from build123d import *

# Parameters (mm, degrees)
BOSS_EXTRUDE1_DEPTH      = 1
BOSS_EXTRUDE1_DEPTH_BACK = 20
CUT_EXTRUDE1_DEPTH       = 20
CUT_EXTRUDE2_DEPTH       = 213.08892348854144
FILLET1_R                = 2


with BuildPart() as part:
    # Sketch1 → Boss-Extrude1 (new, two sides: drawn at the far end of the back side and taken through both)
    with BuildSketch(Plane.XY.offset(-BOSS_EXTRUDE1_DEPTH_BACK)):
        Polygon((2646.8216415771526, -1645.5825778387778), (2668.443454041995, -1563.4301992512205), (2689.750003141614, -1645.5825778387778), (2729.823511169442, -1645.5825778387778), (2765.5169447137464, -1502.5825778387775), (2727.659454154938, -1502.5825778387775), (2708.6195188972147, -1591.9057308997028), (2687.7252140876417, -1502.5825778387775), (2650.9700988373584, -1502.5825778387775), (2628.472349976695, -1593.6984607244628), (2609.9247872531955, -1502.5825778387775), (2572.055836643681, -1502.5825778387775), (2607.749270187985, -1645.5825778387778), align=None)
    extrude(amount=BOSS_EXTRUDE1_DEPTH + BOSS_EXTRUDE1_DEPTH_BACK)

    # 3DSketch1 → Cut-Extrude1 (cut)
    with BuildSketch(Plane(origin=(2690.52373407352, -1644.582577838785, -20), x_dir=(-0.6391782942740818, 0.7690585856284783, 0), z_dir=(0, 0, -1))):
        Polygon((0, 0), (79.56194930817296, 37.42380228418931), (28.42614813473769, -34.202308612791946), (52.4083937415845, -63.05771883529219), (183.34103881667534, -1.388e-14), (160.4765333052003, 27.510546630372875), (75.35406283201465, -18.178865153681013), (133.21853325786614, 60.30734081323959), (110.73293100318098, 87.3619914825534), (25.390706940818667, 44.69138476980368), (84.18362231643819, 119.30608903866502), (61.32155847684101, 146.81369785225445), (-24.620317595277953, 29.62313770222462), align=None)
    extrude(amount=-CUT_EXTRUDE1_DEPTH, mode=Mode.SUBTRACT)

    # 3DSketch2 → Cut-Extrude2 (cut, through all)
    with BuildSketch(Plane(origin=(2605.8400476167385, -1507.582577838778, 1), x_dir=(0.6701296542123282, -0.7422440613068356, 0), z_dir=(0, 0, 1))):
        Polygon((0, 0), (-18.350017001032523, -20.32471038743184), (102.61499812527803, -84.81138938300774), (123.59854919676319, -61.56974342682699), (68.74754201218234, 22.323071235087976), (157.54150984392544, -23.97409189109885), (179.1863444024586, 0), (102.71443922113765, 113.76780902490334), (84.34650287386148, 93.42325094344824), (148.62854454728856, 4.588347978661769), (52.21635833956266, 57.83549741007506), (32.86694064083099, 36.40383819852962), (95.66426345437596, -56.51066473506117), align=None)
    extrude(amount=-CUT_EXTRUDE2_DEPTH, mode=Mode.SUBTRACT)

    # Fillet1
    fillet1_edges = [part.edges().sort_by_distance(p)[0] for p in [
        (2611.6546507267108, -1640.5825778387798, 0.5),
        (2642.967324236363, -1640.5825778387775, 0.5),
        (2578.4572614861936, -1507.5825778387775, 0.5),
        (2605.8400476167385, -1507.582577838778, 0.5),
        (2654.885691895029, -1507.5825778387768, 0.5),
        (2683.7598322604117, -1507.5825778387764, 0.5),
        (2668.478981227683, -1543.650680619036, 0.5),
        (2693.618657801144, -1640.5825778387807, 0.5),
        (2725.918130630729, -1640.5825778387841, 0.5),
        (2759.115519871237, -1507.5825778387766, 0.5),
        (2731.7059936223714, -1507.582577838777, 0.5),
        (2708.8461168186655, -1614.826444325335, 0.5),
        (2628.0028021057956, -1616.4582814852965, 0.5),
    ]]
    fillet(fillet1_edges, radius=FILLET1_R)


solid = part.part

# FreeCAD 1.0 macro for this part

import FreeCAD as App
import Part
import Sketcher
from FreeCAD import Vector


def edges_at(feature, points):
    """Names of the edges that pass closest to the given points."""
    edges = feature.Shape.Edges
    near = lambda p: min(range(len(edges)), key=lambda i: edges[i].distToShape(Part.Vertex(*p))[0])
    return sorted({f"Edge{near(p) + 1}" for p in points})

doc = App.newDocument("Part")
body = doc.addObject("PartDesign::Body", "Body")

# Sketch on XY plane
sketch1 = body.newObject("Sketcher::SketchObject", "Sketch")
sketch1.AttachmentSupport = (doc.getObject("XY_Plane"), [""])
sketch1.MapMode = "FlatFace"
sketch1.addGeometry([
    Part.LineSegment(Vector(2647, -1646, 0), Vector(2668, -1563, 0)),  # 0
    Part.LineSegment(Vector(2668, -1563, 0), Vector(2690, -1646, 0)),  # 1
    Part.LineSegment(Vector(2690, -1646, 0), Vector(2730, -1646, 0)),  # 2
    Part.LineSegment(Vector(2730, -1646, 0), Vector(2766, -1503, 0)),  # 3
    Part.LineSegment(Vector(2766, -1503, 0), Vector(2728, -1503, 0)),  # 4
    Part.LineSegment(Vector(2728, -1503, 0), Vector(2709, -1592, 0)),  # 5
    Part.LineSegment(Vector(2709, -1592, 0), Vector(2688, -1503, 0)),  # 6
    Part.LineSegment(Vector(2688, -1503, 0), Vector(2651, -1503, 0)),  # 7
    Part.LineSegment(Vector(2651, -1503, 0), Vector(2628, -1594, 0)),  # 8
    Part.LineSegment(Vector(2628, -1594, 0), Vector(2610, -1503, 0)),  # 9
    Part.LineSegment(Vector(2610, -1503, 0), Vector(2572, -1503, 0)),  # 10
    Part.LineSegment(Vector(2572, -1503, 0), Vector(2608, -1646, 0)),  # 11
    Part.LineSegment(Vector(2608, -1646, 0), Vector(2647, -1646, 0)),  # 12
], False)
sketch1.addConstraint([
    Sketcher.Constraint("Coincident", 0, 2, 1, 1),
    Sketcher.Constraint("Coincident", 1, 2, 2, 1),
    Sketcher.Constraint("Coincident", 2, 2, 3, 1),
    Sketcher.Constraint("Coincident", 3, 2, 4, 1),
    Sketcher.Constraint("Coincident", 4, 2, 5, 1),
    Sketcher.Constraint("Coincident", 5, 2, 6, 1),
    Sketcher.Constraint("Coincident", 6, 2, 7, 1),
    Sketcher.Constraint("Coincident", 7, 2, 8, 1),
    Sketcher.Constraint("Coincident", 8, 2, 9, 1),
    Sketcher.Constraint("Coincident", 9, 2, 10, 1),
    Sketcher.Constraint("Coincident", 10, 2, 11, 1),
    Sketcher.Constraint("Coincident", 11, 2, 12, 1),
    Sketcher.Constraint("Coincident", 12, 2, 0, 1),
    Sketcher.Constraint("Horizontal", 2),
    Sketcher.Constraint("Horizontal", 4),
    Sketcher.Constraint("Horizontal", 7),
    Sketcher.Constraint("Horizontal", 10),
    Sketcher.Constraint("Horizontal", 12),
    Sketcher.Constraint("Horizontal", 4, 2, 6, 2),
    Sketcher.Constraint("Horizontal", 7, 2, 9, 2),
    Sketcher.Constraint("Horizontal", 2, 2, 11, 2),
    Sketcher.Constraint("Equal", 3, 11),
    Sketcher.Constraint("DistanceY", 2, 2, 3, 2, 143.0),
    Sketcher.Constraint("DistanceX", 0, 2, 4, 2, 59.216),
    Sketcher.Constraint("DistanceX", 2, 1, 2, 2, 40.073508),
    Sketcher.Constraint("DistanceX", 4, 2, 4, 1, 37.857491),
    Sketcher.Constraint("DistanceX", 10, 2, 10, 1, 37.868951),
    Sketcher.Constraint("DistanceX", 12, 1, 12, 2, 39.072371),
    Sketcher.Constraint("DistanceY", 0, 2, -1, 1, 1563.430199),
    Sketcher.Constraint("DistanceX", -1, 1, 7, 2, 2650.970099),
    Sketcher.Constraint("Distance", 0, 84.95008),
    Sketcher.Constraint("Distance", 5, 91.329868),
    Sketcher.Constraint("DistanceX", 7, 2, 7, 1, 36.755115),
    Sketcher.Constraint("DistanceX", -1, 1, 2, 2, 2729.823511),
    Sketcher.Constraint("DistanceX", -1, 1, 5, 2, 2708.619519),
    Sketcher.Constraint("DistanceY", 5, 2, -1, 1, 1591.905731),
    Sketcher.Constraint("DistanceX", -1, 1, 8, 2, 2628.47235),
    Sketcher.Constraint("DistanceY", 8, 2, -1, 1, 1593.698461),
    Sketcher.Constraint("DistanceX", -1, 1, 11, 2, 2607.74927),
])
pad1 = body.newObject("PartDesign::Pad", "Pad")
pad1.Profile = sketch1
pad1.Type = "TwoLengths"
pad1.Length = 1
pad1.Length2 = 20

# Sketch on XY plane
sketch2 = body.newObject("Sketcher::SketchObject", "Sketch001")
sketch2.AttachmentSupport = (doc.getObject("XY_Plane"), [""])
sketch2.MapMode = "FlatFace"
sketch2.AttachmentOffset = App.Placement(Vector(0, 0, -20), App.Rotation())
sketch2.addGeometry([
    Part.LineSegment(Vector(2691, -1645, 0), Vector(2668, -1559, 0)),  # 0
    Part.LineSegment(Vector(2668, -1559, 0), Vector(2646, -1645, 0)),  # 1
    Part.LineSegment(Vector(2646, -1645, 0), Vector(2609, -1645, 0)),  # 2
    Part.LineSegment(Vector(2609, -1645, 0), Vector(2573, -1504, 0)),  # 3
    Part.LineSegment(Vector(2573, -1504, 0), Vector(2609, -1504, 0)),  # 4
    Part.LineSegment(Vector(2609, -1504, 0), Vector(2628, -1598, 0)),  # 5
    Part.LineSegment(Vector(2628, -1598, 0), Vector(2652, -1504, 0)),  # 6
    Part.LineSegment(Vector(2652, -1504, 0), Vector(2687, -1504, 0)),  # 7
    Part.LineSegment(Vector(2687, -1504, 0), Vector(2709, -1596, 0)),  # 8
    Part.LineSegment(Vector(2709, -1596, 0), Vector(2728, -1504, 0)),  # 9
    Part.LineSegment(Vector(2728, -1504, 0), Vector(2764, -1504, 0)),  # 10
    Part.LineSegment(Vector(2764, -1504, 0), Vector(2729, -1645, 0)),  # 11
    Part.LineSegment(Vector(2729, -1645, 0), Vector(2691, -1645, 0)),  # 12
], False)
sketch2.addConstraint([
    Sketcher.Constraint("Coincident", 0, 2, 1, 1),
    Sketcher.Constraint("Coincident", 1, 2, 2, 1),
    Sketcher.Constraint("Coincident", 2, 2, 3, 1),
    Sketcher.Constraint("Coincident", 3, 2, 4, 1),
    Sketcher.Constraint("Coincident", 4, 2, 5, 1),
    Sketcher.Constraint("Coincident", 5, 2, 6, 1),
    Sketcher.Constraint("Coincident", 6, 2, 7, 1),
    Sketcher.Constraint("Coincident", 7, 2, 8, 1),
    Sketcher.Constraint("Coincident", 8, 2, 9, 1),
    Sketcher.Constraint("Coincident", 9, 2, 10, 1),
    Sketcher.Constraint("Coincident", 10, 2, 11, 1),
    Sketcher.Constraint("Coincident", 11, 2, 12, 1),
    Sketcher.Constraint("Coincident", 12, 2, 0, 1),
    Sketcher.Constraint("Horizontal", 2),
    Sketcher.Constraint("Horizontal", 4),
    Sketcher.Constraint("Horizontal", 7),
    Sketcher.Constraint("Horizontal", 10),
    Sketcher.Constraint("Horizontal", 12),
    Sketcher.Constraint("Horizontal", 4, 2, 6, 2),
    Sketcher.Constraint("Horizontal", 7, 2, 9, 2),
    Sketcher.Constraint("Horizontal", 2, 2, 11, 2),
    Sketcher.Constraint("Equal", 3, 11),
    Sketcher.Constraint("DistanceY", 2, 2, 3, 2, 141.0),
    Sketcher.Constraint("DistanceX", 12, 2, 12, 1, 38.518701),
    Sketcher.Constraint("DistanceX", 2, 2, 2, 1, 37.520432),
    Sketcher.Constraint("DistanceX", 7, 1, 7, 2, 35.17892),
    Sketcher.Constraint("DistanceX", 4, 2, 5, 2, 19.270601),
    Sketcher.Constraint("DistanceX", 4, 2, 7, 2, 77.824298),
    Sketcher.Constraint("DistanceX", 5, 2, 8, 2, 80.286398),
    Sketcher.Constraint("DistanceX", 0, 2, 10, 2, 95.7861),
    Sketcher.Constraint("Distance", 6, 97.51093),
    Sketcher.Constraint("Distance", 8, 95.415281),
    Sketcher.Constraint("Distance", 9, 94.994531),
    Sketcher.Constraint("DistanceX", 4, 1, 4, 2, 35.771718),
    Sketcher.Constraint("DistanceX", 10, 1, 10, 2, 35.767898),
    Sketcher.Constraint("DistanceX", -1, 1, 0, 2, 2668.45056),
    Sketcher.Constraint("DistanceX", -1, 1, 1, 2, 2646.050778),
    Sketcher.Constraint("DistanceY", 5, 2, 0, 2, 38.776129),
    Sketcher.Constraint("DistanceY", 0, 2, -1, 1, 1559.474296),
])
pocket1 = body.newObject("PartDesign::Pocket", "Pocket")
pocket1.Profile = sketch2
pocket1.Length = 20
pocket1.Reversed = True

# Sketch on XY plane
sketch3 = body.newObject("Sketcher::SketchObject", "Sketch002")
sketch3.AttachmentSupport = (doc.getObject("XY_Plane"), [""])
sketch3.MapMode = "FlatFace"
sketch3.AttachmentOffset = App.Placement(Vector(0, 0, 1), App.Rotation())
sketch3.addGeometry([
    Part.LineSegment(Vector(2606, -1508, 0), Vector(2578, -1508, 0)),  # 0
    Part.LineSegment(Vector(2578, -1508, 0), Vector(2612, -1641, 0)),  # 1
    Part.LineSegment(Vector(2612, -1641, 0), Vector(2643, -1641, 0)),  # 2
    Part.LineSegment(Vector(2643, -1641, 0), Vector(2668, -1544, 0)),  # 3
    Part.LineSegment(Vector(2668, -1544, 0), Vector(2694, -1641, 0)),  # 4
    Part.LineSegment(Vector(2694, -1641, 0), Vector(2726, -1641, 0)),  # 5
    Part.LineSegment(Vector(2726, -1641, 0), Vector(2759, -1508, 0)),  # 6
    Part.LineSegment(Vector(2759, -1508, 0), Vector(2732, -1508, 0)),  # 7
    Part.LineSegment(Vector(2732, -1508, 0), Vector(2709, -1615, 0)),  # 8
    Part.LineSegment(Vector(2709, -1615, 0), Vector(2684, -1508, 0)),  # 9
    Part.LineSegment(Vector(2684, -1508, 0), Vector(2655, -1508, 0)),  # 10
    Part.LineSegment(Vector(2655, -1508, 0), Vector(2628, -1616, 0)),  # 11
    Part.LineSegment(Vector(2628, -1616, 0), Vector(2606, -1508, 0)),  # 12
], False)
sketch3.addConstraint([
    Sketcher.Constraint("Coincident", 0, 2, 1, 1),
    Sketcher.Constraint("Coincident", 1, 2, 2, 1),
    Sketcher.Constraint("Coincident", 2, 2, 3, 1),
    Sketcher.Constraint("Coincident", 3, 2, 4, 1),
    Sketcher.Constraint("Coincident", 4, 2, 5, 1),
    Sketcher.Constraint("Coincident", 5, 2, 6, 1),
    Sketcher.Constraint("Coincident", 6, 2, 7, 1),
    Sketcher.Constraint("Coincident", 7, 2, 8, 1),
    Sketcher.Constraint("Coincident", 8, 2, 9, 1),
    Sketcher.Constraint("Coincident", 9, 2, 10, 1),
    Sketcher.Constraint("Coincident", 10, 2, 11, 1),
    Sketcher.Constraint("Coincident", 11, 2, 12, 1),
    Sketcher.Constraint("Coincident", 12, 2, 0, 1),
    Sketcher.Constraint("Horizontal", 0),
    Sketcher.Constraint("Horizontal", 2),
    Sketcher.Constraint("Horizontal", 5),
    Sketcher.Constraint("Horizontal", 7),
    Sketcher.Constraint("Horizontal", 10),
    Sketcher.Constraint("Horizontal", 2, 2, 4, 2),
    Sketcher.Constraint("Horizontal", 0, 2, 6, 2),
    Sketcher.Constraint("Horizontal", 7, 2, 9, 2),
    Sketcher.Constraint("Equal", 1, 6),
    Sketcher.Constraint("DistanceY", 1, 2, 0, 2, 133.0),
    Sketcher.Constraint("DistanceX", 10, 2, 10, 1, 28.87414),
    Sketcher.Constraint("DistanceX", 10, 2, 7, 2, 76.820302),
    Sketcher.Constraint("DistanceY", 11, 2, 3, 2, 72.807601),
    Sketcher.Constraint("Distance", 1, 137.080512),
    Sketcher.Constraint("Distance", 9, 110.13886),
    Sketcher.Constraint("Distance", 11, 112.14548),
    Sketcher.Constraint("DistanceX", 0, 2, 0, 1, 27.382786),
    Sketcher.Constraint("DistanceX", 2, 1, 2, 2, 31.312673),
    Sketcher.Constraint("DistanceX", 5, 1, 5, 2, 32.299473),
    Sketcher.Constraint("DistanceX", 7, 2, 7, 1, 27.409526),
    Sketcher.Constraint("DistanceX", -1, 1, 0, 2, 2578.457261),
    Sketcher.Constraint("DistanceX", -1, 1, 3, 2, 2668.478981),
    Sketcher.Constraint("DistanceY", 3, 2, -1, 1, 1543.650681),
    Sketcher.Constraint("DistanceX", -1, 1, 5, 2, 2725.918131),
    Sketcher.Constraint("DistanceX", 4, 2, 8, 2, 15.227459),
    Sketcher.Constraint("DistanceX", 1, 2, 11, 2, 16.348151),
])
pocket2 = body.newObject("PartDesign::Pocket", "Pocket001")
pocket2.Profile = sketch3
pocket2.Type = "ThroughAll"
doc.recompute()

fillet = body.newObject("PartDesign::Fillet", "Fillet")
fillet.Base = (pocket2, edges_at(pocket2, [
    (2611.655, -1640.583, 0.5),
    (2642.967, -1640.583, 0.5),
    (2578.457, -1507.583, 0.5),
    (2605.84, -1507.583, 0.5),
    (2654.886, -1507.583, 0.5),
    (2683.76, -1507.583, 0.5),
    (2668.479, -1543.651, 0.5),
    (2693.619, -1640.583, 0.5),
    (2725.918, -1640.583, 0.5),
    (2759.116, -1507.583, 0.5),
    (2731.706, -1507.583, 0.5),
    (2708.846, -1614.826, 0.5),
    (2628.003, -1616.458, 0.5),
]))
fillet.Radius = 2

doc.recompute()
